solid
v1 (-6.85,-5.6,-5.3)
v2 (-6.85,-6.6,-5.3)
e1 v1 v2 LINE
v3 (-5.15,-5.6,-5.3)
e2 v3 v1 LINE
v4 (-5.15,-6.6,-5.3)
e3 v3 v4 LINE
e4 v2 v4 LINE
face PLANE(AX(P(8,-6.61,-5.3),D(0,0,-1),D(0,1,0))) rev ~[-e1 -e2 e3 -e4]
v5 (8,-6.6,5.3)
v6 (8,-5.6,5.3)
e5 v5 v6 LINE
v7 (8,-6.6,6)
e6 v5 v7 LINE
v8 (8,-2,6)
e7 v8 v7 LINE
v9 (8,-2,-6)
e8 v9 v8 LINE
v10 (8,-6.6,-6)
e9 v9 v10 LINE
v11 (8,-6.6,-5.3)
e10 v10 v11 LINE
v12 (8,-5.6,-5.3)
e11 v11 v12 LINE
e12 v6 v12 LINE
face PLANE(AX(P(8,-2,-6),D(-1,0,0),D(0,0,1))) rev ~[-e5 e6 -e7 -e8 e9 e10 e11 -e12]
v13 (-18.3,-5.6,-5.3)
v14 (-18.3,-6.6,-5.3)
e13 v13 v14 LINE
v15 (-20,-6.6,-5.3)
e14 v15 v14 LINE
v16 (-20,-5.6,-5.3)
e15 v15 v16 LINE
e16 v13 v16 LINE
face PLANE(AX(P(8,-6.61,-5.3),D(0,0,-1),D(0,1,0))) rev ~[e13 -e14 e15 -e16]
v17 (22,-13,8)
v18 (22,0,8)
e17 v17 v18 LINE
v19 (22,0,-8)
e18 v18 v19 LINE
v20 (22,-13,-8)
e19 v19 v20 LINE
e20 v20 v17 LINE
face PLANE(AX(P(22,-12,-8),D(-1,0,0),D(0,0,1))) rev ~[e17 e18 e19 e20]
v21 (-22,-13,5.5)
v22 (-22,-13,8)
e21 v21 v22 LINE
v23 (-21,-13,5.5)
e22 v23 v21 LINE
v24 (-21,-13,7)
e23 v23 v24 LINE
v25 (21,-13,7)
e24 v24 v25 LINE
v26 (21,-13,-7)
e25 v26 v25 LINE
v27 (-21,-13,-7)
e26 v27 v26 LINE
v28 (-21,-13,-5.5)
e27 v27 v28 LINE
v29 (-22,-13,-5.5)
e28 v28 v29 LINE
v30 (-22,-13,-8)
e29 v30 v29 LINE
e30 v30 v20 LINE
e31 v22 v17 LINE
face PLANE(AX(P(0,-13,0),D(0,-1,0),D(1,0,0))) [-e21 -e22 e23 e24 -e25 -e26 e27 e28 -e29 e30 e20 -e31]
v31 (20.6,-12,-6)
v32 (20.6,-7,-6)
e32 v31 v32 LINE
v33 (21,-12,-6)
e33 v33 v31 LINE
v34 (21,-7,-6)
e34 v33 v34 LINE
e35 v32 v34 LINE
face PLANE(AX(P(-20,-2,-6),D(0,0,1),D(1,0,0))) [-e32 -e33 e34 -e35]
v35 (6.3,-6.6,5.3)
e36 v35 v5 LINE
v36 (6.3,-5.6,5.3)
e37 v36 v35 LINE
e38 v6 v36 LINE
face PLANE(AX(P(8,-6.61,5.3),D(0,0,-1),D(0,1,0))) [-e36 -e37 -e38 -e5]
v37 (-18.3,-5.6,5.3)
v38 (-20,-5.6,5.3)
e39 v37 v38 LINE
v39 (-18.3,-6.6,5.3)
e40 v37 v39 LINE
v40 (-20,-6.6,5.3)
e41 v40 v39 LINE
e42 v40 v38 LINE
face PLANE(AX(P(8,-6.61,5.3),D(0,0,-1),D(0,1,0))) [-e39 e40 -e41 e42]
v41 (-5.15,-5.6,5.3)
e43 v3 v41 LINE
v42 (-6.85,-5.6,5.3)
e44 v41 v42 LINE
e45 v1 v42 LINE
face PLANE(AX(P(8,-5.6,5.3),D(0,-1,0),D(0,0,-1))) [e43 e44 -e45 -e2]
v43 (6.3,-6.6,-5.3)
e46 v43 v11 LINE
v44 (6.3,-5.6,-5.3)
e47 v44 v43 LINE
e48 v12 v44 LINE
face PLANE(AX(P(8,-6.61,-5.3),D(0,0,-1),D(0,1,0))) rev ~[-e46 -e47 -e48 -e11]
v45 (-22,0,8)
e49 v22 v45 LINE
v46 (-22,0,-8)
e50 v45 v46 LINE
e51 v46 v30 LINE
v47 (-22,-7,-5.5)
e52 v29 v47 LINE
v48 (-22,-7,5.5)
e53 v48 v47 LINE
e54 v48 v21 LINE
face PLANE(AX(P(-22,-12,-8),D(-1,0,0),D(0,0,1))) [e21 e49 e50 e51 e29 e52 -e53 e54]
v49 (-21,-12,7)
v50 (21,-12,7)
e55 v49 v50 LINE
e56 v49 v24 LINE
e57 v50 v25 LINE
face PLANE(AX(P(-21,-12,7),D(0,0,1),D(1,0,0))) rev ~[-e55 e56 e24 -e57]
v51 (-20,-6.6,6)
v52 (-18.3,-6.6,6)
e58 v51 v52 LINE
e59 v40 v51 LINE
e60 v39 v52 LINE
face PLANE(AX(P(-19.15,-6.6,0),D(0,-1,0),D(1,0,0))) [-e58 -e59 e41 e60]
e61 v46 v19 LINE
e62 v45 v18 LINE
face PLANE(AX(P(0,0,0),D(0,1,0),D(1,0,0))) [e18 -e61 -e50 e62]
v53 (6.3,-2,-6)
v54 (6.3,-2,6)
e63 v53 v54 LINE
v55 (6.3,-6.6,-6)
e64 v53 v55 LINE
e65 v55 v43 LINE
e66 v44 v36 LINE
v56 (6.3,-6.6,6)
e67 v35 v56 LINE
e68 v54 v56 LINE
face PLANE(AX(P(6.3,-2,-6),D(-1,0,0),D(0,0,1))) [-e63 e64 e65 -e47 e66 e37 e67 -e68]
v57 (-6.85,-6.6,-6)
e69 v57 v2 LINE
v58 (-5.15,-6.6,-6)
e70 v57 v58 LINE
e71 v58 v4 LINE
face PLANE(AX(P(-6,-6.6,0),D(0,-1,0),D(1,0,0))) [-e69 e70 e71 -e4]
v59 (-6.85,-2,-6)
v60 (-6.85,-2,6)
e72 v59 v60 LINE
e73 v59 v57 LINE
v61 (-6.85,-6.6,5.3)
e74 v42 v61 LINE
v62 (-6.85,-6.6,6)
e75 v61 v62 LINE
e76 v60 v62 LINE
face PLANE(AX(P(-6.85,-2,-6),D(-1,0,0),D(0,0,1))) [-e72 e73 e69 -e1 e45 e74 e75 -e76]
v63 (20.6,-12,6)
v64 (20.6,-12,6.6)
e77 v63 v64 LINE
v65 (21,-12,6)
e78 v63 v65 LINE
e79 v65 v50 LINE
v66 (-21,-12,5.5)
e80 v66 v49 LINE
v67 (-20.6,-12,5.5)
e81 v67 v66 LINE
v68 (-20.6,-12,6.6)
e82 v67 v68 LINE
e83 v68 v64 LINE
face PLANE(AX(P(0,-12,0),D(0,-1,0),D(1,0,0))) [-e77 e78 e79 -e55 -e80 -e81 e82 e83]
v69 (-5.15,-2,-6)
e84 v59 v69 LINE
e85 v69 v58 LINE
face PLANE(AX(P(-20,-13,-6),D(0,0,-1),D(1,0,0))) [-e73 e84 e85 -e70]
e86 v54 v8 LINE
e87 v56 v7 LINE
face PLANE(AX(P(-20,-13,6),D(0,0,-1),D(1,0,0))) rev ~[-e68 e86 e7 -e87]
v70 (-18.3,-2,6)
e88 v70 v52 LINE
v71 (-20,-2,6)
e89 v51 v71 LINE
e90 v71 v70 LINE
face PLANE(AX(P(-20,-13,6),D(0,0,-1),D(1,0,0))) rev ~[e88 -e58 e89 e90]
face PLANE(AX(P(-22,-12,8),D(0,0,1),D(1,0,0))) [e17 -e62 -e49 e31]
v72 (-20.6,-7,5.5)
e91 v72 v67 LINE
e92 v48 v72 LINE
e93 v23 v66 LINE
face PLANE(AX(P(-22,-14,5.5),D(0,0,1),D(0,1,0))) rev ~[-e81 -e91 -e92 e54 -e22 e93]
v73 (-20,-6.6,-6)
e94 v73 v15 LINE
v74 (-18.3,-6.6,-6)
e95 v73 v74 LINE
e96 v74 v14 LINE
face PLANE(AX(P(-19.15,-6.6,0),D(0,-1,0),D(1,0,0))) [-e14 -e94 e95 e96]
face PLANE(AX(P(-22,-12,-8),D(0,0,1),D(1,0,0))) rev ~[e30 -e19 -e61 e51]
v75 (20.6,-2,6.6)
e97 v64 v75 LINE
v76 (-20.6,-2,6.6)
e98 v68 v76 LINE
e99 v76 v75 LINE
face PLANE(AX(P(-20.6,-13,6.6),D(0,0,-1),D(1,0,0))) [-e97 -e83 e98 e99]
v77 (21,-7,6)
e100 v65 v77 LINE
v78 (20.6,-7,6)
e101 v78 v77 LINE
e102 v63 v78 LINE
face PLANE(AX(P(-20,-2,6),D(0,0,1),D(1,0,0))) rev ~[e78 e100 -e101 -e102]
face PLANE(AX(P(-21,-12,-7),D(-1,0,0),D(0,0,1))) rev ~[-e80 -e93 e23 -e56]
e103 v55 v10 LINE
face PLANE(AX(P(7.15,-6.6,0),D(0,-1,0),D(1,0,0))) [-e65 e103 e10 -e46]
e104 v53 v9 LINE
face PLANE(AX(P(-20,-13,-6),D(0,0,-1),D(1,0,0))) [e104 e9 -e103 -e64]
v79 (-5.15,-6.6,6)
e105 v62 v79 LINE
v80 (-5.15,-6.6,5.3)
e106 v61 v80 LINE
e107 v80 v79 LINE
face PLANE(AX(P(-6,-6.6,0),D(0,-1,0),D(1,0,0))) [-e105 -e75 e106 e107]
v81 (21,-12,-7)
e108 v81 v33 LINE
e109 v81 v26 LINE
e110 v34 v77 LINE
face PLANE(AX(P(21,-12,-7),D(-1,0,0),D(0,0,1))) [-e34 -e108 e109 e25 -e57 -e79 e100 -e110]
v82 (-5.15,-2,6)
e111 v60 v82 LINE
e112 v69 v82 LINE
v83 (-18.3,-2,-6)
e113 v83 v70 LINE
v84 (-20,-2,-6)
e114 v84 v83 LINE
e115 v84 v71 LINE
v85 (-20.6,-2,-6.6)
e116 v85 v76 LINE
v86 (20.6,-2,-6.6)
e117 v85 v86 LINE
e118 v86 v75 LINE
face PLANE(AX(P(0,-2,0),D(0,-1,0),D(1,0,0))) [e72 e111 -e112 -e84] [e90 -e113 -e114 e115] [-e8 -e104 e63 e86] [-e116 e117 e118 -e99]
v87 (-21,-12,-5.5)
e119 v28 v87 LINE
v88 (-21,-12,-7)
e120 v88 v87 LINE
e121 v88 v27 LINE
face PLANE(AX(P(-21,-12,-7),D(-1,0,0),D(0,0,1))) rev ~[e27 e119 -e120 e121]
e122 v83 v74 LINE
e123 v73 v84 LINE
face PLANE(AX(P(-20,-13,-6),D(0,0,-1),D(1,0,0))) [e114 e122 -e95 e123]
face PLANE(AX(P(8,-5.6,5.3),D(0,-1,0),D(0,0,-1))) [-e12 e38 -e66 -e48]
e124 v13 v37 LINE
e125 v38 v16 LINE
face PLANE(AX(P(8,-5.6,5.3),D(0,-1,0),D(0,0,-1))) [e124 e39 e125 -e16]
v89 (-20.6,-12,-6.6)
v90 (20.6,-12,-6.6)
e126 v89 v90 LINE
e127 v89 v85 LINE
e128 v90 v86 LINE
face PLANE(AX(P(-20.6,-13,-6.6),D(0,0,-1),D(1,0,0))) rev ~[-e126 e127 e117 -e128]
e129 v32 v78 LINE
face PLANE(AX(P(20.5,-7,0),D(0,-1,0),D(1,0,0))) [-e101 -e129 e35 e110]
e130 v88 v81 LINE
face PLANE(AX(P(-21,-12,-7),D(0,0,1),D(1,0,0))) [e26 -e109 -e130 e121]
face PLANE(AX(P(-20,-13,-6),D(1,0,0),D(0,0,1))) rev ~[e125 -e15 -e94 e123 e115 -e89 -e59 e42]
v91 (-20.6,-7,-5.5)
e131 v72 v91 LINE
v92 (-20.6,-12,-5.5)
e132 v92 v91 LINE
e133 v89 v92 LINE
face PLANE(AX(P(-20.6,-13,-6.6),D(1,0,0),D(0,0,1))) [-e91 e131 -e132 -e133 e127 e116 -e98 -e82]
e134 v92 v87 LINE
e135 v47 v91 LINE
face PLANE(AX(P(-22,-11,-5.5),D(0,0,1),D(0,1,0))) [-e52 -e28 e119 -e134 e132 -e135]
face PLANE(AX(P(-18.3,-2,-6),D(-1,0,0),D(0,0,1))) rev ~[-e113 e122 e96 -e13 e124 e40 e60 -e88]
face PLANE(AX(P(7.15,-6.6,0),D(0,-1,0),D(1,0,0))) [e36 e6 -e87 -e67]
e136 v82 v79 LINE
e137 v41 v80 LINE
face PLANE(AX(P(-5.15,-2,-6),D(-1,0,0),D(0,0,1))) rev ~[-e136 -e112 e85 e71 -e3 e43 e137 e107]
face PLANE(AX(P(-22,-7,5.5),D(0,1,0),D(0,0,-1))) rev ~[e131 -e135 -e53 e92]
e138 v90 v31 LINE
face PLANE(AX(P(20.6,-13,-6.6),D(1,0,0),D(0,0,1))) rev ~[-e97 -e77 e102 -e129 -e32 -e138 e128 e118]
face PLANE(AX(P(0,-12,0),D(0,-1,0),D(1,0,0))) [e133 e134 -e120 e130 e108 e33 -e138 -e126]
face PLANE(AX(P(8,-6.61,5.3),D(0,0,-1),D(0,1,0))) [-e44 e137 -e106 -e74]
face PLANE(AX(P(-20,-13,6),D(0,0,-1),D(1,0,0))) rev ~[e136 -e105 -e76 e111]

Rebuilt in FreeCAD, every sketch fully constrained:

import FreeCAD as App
import Part
import Sketcher
from FreeCAD import Vector


def add_polygon(sketch, points):
    """Adds a closed chain of lines whose ends are joined by coincident constraints."""
    first, n = sketch.GeometryCount, len(points)
    for a, b in zip(points, points[1:] + points[:1]):
        sketch.addGeometry(Part.LineSegment(App.Vector(*a, 0), App.Vector(*b, 0)), False)
    for i in range(n):
        sketch.addConstraint(Sketcher.Constraint("Coincident", first + i, 2, first + (i + 1) % n, 1))

doc = App.newDocument("Part")
body = doc.addObject("PartDesign::Body", "Body")

# Sketch on XZ plane
sketch1 = doc.addObject("Sketcher::SketchObject", "Sketch")
body.addObject(sketch1)
sketch1.AttachmentSupport = (doc.XZ_Plane, [""])
sketch1.MapMode = "FlatFace"
add_polygon(sketch1, [(-22, -8), (-22, 8), (22, 8), (22, -8)])  # lines 0-3
sketch1.addConstraint(Sketcher.Constraint("Vertical", 0))
sketch1.addConstraint(Sketcher.Constraint("Horizontal", 1))
sketch1.addConstraint(Sketcher.Constraint("Vertical", 2))
sketch1.addConstraint(Sketcher.Constraint("Horizontal", 3))
sketch1.addConstraint(Sketcher.Constraint("Symmetric", 0, 2, 2, 2, -1, 1))
sketch1.addConstraint(Sketcher.Constraint("DistanceX", 1, 1, 1, 2, 44.0))
sketch1.addConstraint(Sketcher.Constraint("DistanceY", 0, 1, 0, 2, 16.0))
pad1 = doc.addObject("PartDesign::Pad", "Pad")
body.addObject(pad1)
pad1.Profile = sketch1
pad1.Length = 2

# Sketch on XZ plane
sketch2 = doc.addObject("Sketcher::SketchObject", "Sketch001")
body.addObject(sketch2)
sketch2.AttachmentSupport = (doc.XZ_Plane, [""])
sketch2.MapMode = "FlatFace"
sketch2.AttachmentOffset = App.Placement(Vector(0, 0, 2), App.Rotation())
add_polygon(sketch2, [(-22, 8), (-22, -8), (22, -8), (22, 8)])  # lines 0-3
add_polygon(sketch2, [(20, -6), (-20, -6), (-20, 6), (20, 6)])  # lines 4-7
sketch2.addConstraint(Sketcher.Constraint("Vertical", 0))
sketch2.addConstraint(Sketcher.Constraint("Horizontal", 1))
sketch2.addConstraint(Sketcher.Constraint("Vertical", 2))
sketch2.addConstraint(Sketcher.Constraint("Horizontal", 3))
sketch2.addConstraint(Sketcher.Constraint("Horizontal", 4))
sketch2.addConstraint(Sketcher.Constraint("Vertical", 5))
sketch2.addConstraint(Sketcher.Constraint("Horizontal", 6))
sketch2.addConstraint(Sketcher.Constraint("Vertical", 7))
sketch2.addConstraint(Sketcher.Constraint("Symmetric", 0, 2, 2, 2, -1, 1))
sketch2.addConstraint(Sketcher.Constraint("Symmetric", 4, 2, 6, 2, -1, 1))
sketch2.addConstraint(Sketcher.Constraint("DistanceX", 1, 1, 1, 2, 44.0))
sketch2.addConstraint(Sketcher.Constraint("DistanceX", 4, 2, 4, 1, 40.0))
sketch2.addConstraint(Sketcher.Constraint("DistanceY", 0, 2, 0, 1, 16.0))
sketch2.addConstraint(Sketcher.Constraint("DistanceY", 5, 1, 5, 2, 12.0))
pad2 = doc.addObject("PartDesign::Pad", "Pad001")
body.addObject(pad2)
pad2.Profile = sketch2
pad2.Length = 10

# Sketch on YZ plane
sketch3 = doc.addObject("Sketcher::SketchObject", "Sketch002")
body.addObject(sketch3)
sketch3.AttachmentSupport = (doc.YZ_Plane, [""])
sketch3.MapMode = "FlatFace"
sketch3.AttachmentOffset = App.Placement(Vector(0, 0, -22), App.Rotation())
add_polygon(sketch3, [(-11, 5.5), (-7, 5.5), (-7, -5.5), (-11, -5.5)])  # lines 0-3
sketch3.addConstraint(Sketcher.Constraint("Horizontal", 0))
sketch3.addConstraint(Sketcher.Constraint("Vertical", 1))
sketch3.addConstraint(Sketcher.Constraint("Horizontal", 2))
sketch3.addConstraint(Sketcher.Constraint("Vertical", 3))
sketch3.addConstraint(Sketcher.Constraint("DistanceX", 0, 1, 0, 2, 4.0))
sketch3.addConstraint(Sketcher.Constraint("DistanceY", 1, 2, 1, 1, 11.0))
sketch3.addConstraint(Sketcher.Constraint("DistanceX", 0, 2, -1, 1, 7.0))
sketch3.addConstraint(Sketcher.Constraint("DistanceY", -1, 1, 0, 2, 5.5))
pocket1 = doc.addObject("PartDesign::Pocket", "Pocket")
body.addObject(pocket1)
pocket1.Profile = sketch3
pocket1.Length = 2
pocket1.Reversed = True

# Sketch on XZ plane
sketch4 = doc.addObject("Sketcher::SketchObject", "Sketch003")
body.addObject(sketch4)
sketch4.AttachmentSupport = (doc.XZ_Plane, [""])
sketch4.MapMode = "FlatFace"
sketch4.AttachmentOffset = App.Placement(Vector(0, 0, 2), App.Rotation())
add_polygon(sketch4, [(6.3, 6), (6.3, -6), (8, -6), (8, 6)])  # lines 0-3
add_polygon(sketch4, [(-20, 6), (-20, -6), (-18.3, -6), (-18.3, 6)])  # lines 4-7
add_polygon(sketch4, [(-6.85, 6), (-6.85, -6), (-5.15, -6), (-5.15, 6)])  # lines 8-11
sketch4.addConstraint(Sketcher.Constraint("Vertical", 0))
sketch4.addConstraint(Sketcher.Constraint("Horizontal", 1))
sketch4.addConstraint(Sketcher.Constraint("Vertical", 2))
sketch4.addConstraint(Sketcher.Constraint("Horizontal", 3))
sketch4.addConstraint(Sketcher.Constraint("Vertical", 4))
sketch4.addConstraint(Sketcher.Constraint("Horizontal", 5))
sketch4.addConstraint(Sketcher.Constraint("Vertical", 6))
sketch4.addConstraint(Sketcher.Constraint("Horizontal", 7))
sketch4.addConstraint(Sketcher.Constraint("Vertical", 8))
sketch4.addConstraint(Sketcher.Constraint("Horizontal", 9))
sketch4.addConstraint(Sketcher.Constraint("Vertical", 10))
sketch4.addConstraint(Sketcher.Constraint("Horizontal", 11))
sketch4.addConstraint(Sketcher.Constraint("Horizontal", 1, 2, 4, 2))
sketch4.addConstraint(Sketcher.Constraint("Horizontal", 3, 2, 6, 2))
sketch4.addConstraint(Sketcher.Constraint("Horizontal", 5, 2, 8, 2))
sketch4.addConstraint(Sketcher.Constraint("Horizontal", 7, 2, 10, 2))
sketch4.addConstraint(Sketcher.Constraint("Equal", 3, 5))
sketch4.addConstraint(Sketcher.Constraint("Equal", 7, 9))
sketch4.addConstraint(Sketcher.Constraint("DistanceY", 0, 2, 0, 1, 12.0))
sketch4.addConstraint(Sketcher.Constraint("DistanceX", 1, 1, 1, 2, 1.7))
sketch4.addConstraint(Sketcher.Constraint("DistanceY", 0, 2, -1, 1, 6.0))
sketch4.addConstraint(Sketcher.Constraint("DistanceX", -1, 1, 1, 2, 8.0))
sketch4.addConstraint(Sketcher.Constraint("DistanceX", 4, 2, -1, 1, 20.0))
sketch4.addConstraint(Sketcher.Constraint("DistanceX", 8, 2, -1, 1, 6.85))
pad3 = doc.addObject("PartDesign::Pad", "Pad002")
body.addObject(pad3)
pad3.Profile = sketch4
pad3.Length = 4.6

# Sketch on XZ plane
sketch5 = doc.addObject("Sketcher::SketchObject", "Sketch004")
body.addObject(sketch5)
sketch5.AttachmentSupport = (doc.XZ_Plane, [""])
sketch5.MapMode = "FlatFace"
sketch5.AttachmentOffset = App.Placement(Vector(0, 0, 12), App.Rotation())
add_polygon(sketch5, [(-22, 8), (-22, -8), (22, -8), (22, 8)])  # lines 0-3
add_polygon(sketch5, [(21, -7), (-21, -7), (-21, 7), (21, 7)])  # lines 4-7
sketch5.addConstraint(Sketcher.Constraint("Vertical", 0))
sketch5.addConstraint(Sketcher.Constraint("Horizontal", 1))
sketch5.addConstraint(Sketcher.Constraint("Vertical", 2))
sketch5.addConstraint(Sketcher.Constraint("Horizontal", 3))
sketch5.addConstraint(Sketcher.Constraint("Horizontal", 4))
sketch5.addConstraint(Sketcher.Constraint("Vertical", 5))
sketch5.addConstraint(Sketcher.Constraint("Horizontal", 6))
sketch5.addConstraint(Sketcher.Constraint("Vertical", 7))
sketch5.addConstraint(Sketcher.Constraint("Symmetric", 0, 2, 2, 2, -1, 1))
sketch5.addConstraint(Sketcher.Constraint("Symmetric", 4, 2, 6, 2, -1, 1))
sketch5.addConstraint(Sketcher.Constraint("DistanceX", 1, 1, 1, 2, 44.0))
sketch5.addConstraint(Sketcher.Constraint("DistanceX", 4, 2, 4, 1, 42.0))
sketch5.addConstraint(Sketcher.Constraint("DistanceY", 0, 2, 0, 1, 16.0))
sketch5.addConstraint(Sketcher.Constraint("DistanceY", 5, 1, 5, 2, 14.0))
pad4 = doc.addObject("PartDesign::Pad", "Pad003")
body.addObject(pad4)
pad4.Profile = sketch5
pad4.Length = 1

# Sketch on XZ plane
sketch6 = doc.addObject("Sketcher::SketchObject", "Sketch005")
body.addObject(sketch6)
sketch6.AttachmentSupport = (doc.XZ_Plane, [""])
sketch6.MapMode = "FlatFace"
sketch6.AttachmentOffset = App.Placement(Vector(0, 0, 12), App.Rotation())
add_polygon(sketch6, [(20, 6), (20, -6), (21, -6), (21, 6)])  # lines 0-3
sketch6.addConstraint(Sketcher.Constraint("Vertical", 0))
sketch6.addConstraint(Sketcher.Constraint("Horizontal", 1))
sketch6.addConstraint(Sketcher.Constraint("Vertical", 2))
sketch6.addConstraint(Sketcher.Constraint("Horizontal", 3))
sketch6.addConstraint(Sketcher.Constraint("DistanceX", 1, 1, 1, 2, 1.0))
sketch6.addConstraint(Sketcher.Constraint("DistanceY", 0, 2, 0, 1, 12.0))
sketch6.addConstraint(Sketcher.Constraint("DistanceX", -1, 1, 0, 2, 20.0))
sketch6.addConstraint(Sketcher.Constraint("DistanceY", 0, 2, -1, 1, 6.0))
pocket2 = doc.addObject("PartDesign::Pocket", "Pocket001")
body.addObject(pocket2)
pocket2.Profile = sketch6
pocket2.Length = 5

# Sketch on XZ plane
sketch7 = doc.addObject("Sketcher::SketchObject", "Sketch006")
body.addObject(sketch7)
sketch7.AttachmentSupport = (doc.XZ_Plane, [""])
sketch7.MapMode = "FlatFace"
sketch7.AttachmentOffset = App.Placement(Vector(0, 0, 13), App.Rotation())
add_polygon(sketch7, [(-20.6, 6.6), (-20.6, -6.6), (20.6, -6.6), (20.6, 6.6)])  # lines 0-3
add_polygon(sketch7, [(20, -6), (-20, -6), (-20, 6), (20, 6)])  # lines 4-7
sketch7.addConstraint(Sketcher.Constraint("Vertical", 0))
sketch7.addConstraint(Sketcher.Constraint("Horizontal", 1))
sketch7.addConstraint(Sketcher.Constraint("Vertical", 2))
sketch7.addConstraint(Sketcher.Constraint("Horizontal", 3))
sketch7.addConstraint(Sketcher.Constraint("Horizontal", 4))
sketch7.addConstraint(Sketcher.Constraint("Vertical", 5))
sketch7.addConstraint(Sketcher.Constraint("Horizontal", 6))
sketch7.addConstraint(Sketcher.Constraint("Vertical", 7))
sketch7.addConstraint(Sketcher.Constraint("Symmetric", 0, 2, 2, 2, -1, 1))
sketch7.addConstraint(Sketcher.Constraint("Symmetric", 4, 2, 6, 2, -1, 1))
sketch7.addConstraint(Sketcher.Constraint("DistanceX", 4, 2, 4, 1, 40.0))
sketch7.addConstraint(Sketcher.Constraint("DistanceY", 5, 1, 5, 2, 12.0))
sketch7.addConstraint(Sketcher.Constraint("DistanceX", 1, 1, 1, 2, 41.2))
sketch7.addConstraint(Sketcher.Constraint("DistanceY", 0, 2, 0, 1, 13.2))
pocket3 = doc.addObject("PartDesign::Pocket", "Pocket002")
body.addObject(pocket3)
pocket3.Profile = sketch7
pocket3.Length = 11

# Sketch on YZ plane
sketch8 = doc.addObject("Sketcher::SketchObject", "Sketch007")
body.addObject(sketch8)
sketch8.AttachmentSupport = (doc.YZ_Plane, [""])
sketch8.MapMode = "FlatFace"
sketch8.AttachmentOffset = App.Placement(Vector(0, 0, -22), App.Rotation())
add_polygon(sketch8, [(-7, -5.5), (-14, -5.5), (-14, 5.5), (-7, 5.5)])  # lines 0-3
sketch8.addConstraint(Sketcher.Constraint("Horizontal", 0))
sketch8.addConstraint(Sketcher.Constraint("Vertical", 1))
sketch8.addConstraint(Sketcher.Constraint("Horizontal", 2))
sketch8.addConstraint(Sketcher.Constraint("Vertical", 3))
sketch8.addConstraint(Sketcher.Constraint("DistanceX", 0, 2, 0, 1, 7.0))
sketch8.addConstraint(Sketcher.Constraint("DistanceY", 1, 1, 1, 2, 11.0))
sketch8.addConstraint(Sketcher.Constraint("DistanceX", 0, 2, -1, 1, 14.0))
sketch8.addConstraint(Sketcher.Constraint("DistanceY", 0, 2, -1, 1, 5.5))
pocket4 = doc.addObject("PartDesign::Pocket", "Pocket003")
body.addObject(pocket4)
pocket4.Profile = sketch8
pocket4.Length = 2.1
pocket4.Reversed = True

# Sketch on YZ plane
sketch9 = doc.addObject("Sketcher::SketchObject", "Sketch008")
body.addObject(sketch9)
sketch9.AttachmentSupport = (doc.YZ_Plane, [""])
sketch9.MapMode = "FlatFace"
sketch9.AttachmentOffset = App.Placement(Vector(0, 0, 8), App.Rotation())
add_polygon(sketch9, [(-5.6, 5.3), (-6.61, 5.3), (-6.61, -5.3), (-5.6, -5.3)])  # lines 0-3
sketch9.addConstraint(Sketcher.Constraint("Horizontal", 0))
sketch9.addConstraint(Sketcher.Constraint("Vertical", 1))
sketch9.addConstraint(Sketcher.Constraint("Horizontal", 2))
sketch9.addConstraint(Sketcher.Constraint("Vertical", 3))
sketch9.addConstraint(Sketcher.Constraint("DistanceY", 1, 2, 1, 1, 10.6))
sketch9.addConstraint(Sketcher.Constraint("DistanceX", 0, 2, 0, 1, 1.01))
sketch9.addConstraint(Sketcher.Constraint("DistanceY", -1, 1, 0, 2, 5.3))
sketch9.addConstraint(Sketcher.Constraint("DistanceX", 2, 2, -1, 1, 5.6))
pocket5 = doc.addObject("PartDesign::Pocket", "Pocket004")
body.addObject(pocket5)
pocket5.Profile = sketch9
pocket5.Length = 28

doc.recompute()
